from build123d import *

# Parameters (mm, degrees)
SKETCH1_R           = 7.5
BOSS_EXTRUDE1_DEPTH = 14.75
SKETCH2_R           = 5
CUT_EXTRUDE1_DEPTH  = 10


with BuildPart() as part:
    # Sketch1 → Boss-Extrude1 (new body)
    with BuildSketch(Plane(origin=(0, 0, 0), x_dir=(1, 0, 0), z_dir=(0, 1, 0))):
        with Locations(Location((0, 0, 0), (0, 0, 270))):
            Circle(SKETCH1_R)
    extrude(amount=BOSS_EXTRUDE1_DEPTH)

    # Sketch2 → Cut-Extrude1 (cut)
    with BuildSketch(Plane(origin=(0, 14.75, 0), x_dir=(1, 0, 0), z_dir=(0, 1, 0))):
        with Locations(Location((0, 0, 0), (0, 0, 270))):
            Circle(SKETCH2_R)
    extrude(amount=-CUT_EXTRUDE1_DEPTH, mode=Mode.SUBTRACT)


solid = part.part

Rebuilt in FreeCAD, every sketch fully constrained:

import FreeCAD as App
import Part
import Sketcher
from FreeCAD import Vector

doc = App.newDocument("Part")
body = doc.addObject("PartDesign::Body", "Body")

# Sketch on XZ plane
sketch1 = body.newObject("Sketcher::SketchObject", "Sketch")
sketch1.AttachmentSupport = (doc.getObject("XZ_Plane"), [""])
sketch1.MapMode = "FlatFace"
sketch1.addGeometry(Part.Circle(Vector(0, 0, 0), Vector(0, 0, 1), 8), False)
sketch1.addConstraint(Sketcher.Constraint("Coincident", 0, 3, -1, 1))
sketch1.addConstraint(Sketcher.Constraint("Diameter", 0, 15.0))
pad1 = body.newObject("PartDesign::Pad", "Pad")
pad1.Profile = sketch1
pad1.Length = 14.75
pad1.Reversed = True

# Sketch on XZ plane
sketch2 = body.newObject("Sketcher::SketchObject", "Sketch001")
sketch2.AttachmentSupport = (doc.getObject("XZ_Plane"), [""])
sketch2.MapMode = "FlatFace"
sketch2.AttachmentOffset = App.Placement(Vector(0, 0, -14.75), App.Rotation())
sketch2.addGeometry(Part.Circle(Vector(0, 0, 0), Vector(0, 0, 1), 5), False)
sketch2.addConstraint(Sketcher.Constraint("Coincident", 0, 3, -1, 1))
sketch2.addConstraint(Sketcher.Constraint("Diameter", 0, 10.0))
pocket1 = body.newObject("PartDesign::Pocket", "Pocket")
pocket1.Profile = sketch2
pocket1.Length = 10
pocket1.Reversed = True

doc.recompute()
